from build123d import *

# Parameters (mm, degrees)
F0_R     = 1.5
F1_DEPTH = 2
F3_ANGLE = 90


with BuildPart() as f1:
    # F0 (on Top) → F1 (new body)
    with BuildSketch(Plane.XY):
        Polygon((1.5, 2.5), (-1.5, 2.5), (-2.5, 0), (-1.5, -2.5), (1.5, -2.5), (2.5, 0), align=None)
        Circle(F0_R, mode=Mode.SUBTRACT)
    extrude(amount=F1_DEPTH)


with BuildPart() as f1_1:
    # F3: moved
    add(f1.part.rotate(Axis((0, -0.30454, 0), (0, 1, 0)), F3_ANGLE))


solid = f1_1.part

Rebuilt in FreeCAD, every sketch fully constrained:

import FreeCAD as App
import Part
import Sketcher
from FreeCAD import Vector
Q = App.Units.Quantity

doc = App.newDocument("Part")
body = doc.addObject("PartDesign::Body", "Body")

# Sketch on XY plane
sketch1 = body.newObject("Sketcher::SketchObject", "Sketch")
sketch1.AttachmentSupport = (doc.getObject("XY_Plane"), [""])
sketch1.MapMode = "FlatFace"
sketch1.addGeometry(Part.LineSegment(Vector(1.5, 2.5, 0), Vector(-1.5, 2.5, 0)), False)
sketch1.addGeometry(Part.LineSegment(Vector(-1.5, 2.5, 0), Vector(-2.5, 0, 0)), False)
sketch1.addGeometry(Part.LineSegment(Vector(-2.5, 0, 0), Vector(-1.5, -2.5, 0)), False)
sketch1.addGeometry(Part.LineSegment(Vector(-1.5, -2.5, 0), Vector(1.5, -2.5, 0)), False)
sketch1.addGeometry(Part.LineSegment(Vector(1.5, -2.5, 0), Vector(2.5, 0, 0)), False)
sketch1.addGeometry(Part.LineSegment(Vector(2.5, 0, 0), Vector(1.5, 2.5, 0)), False)
sketch1.addGeometry(Part.Circle(Vector(0, 0, 0), Vector(0, 0, 1), 1.5), False)
sketch1.addConstraint(Sketcher.Constraint("Coincident", 0, 2, 1, 1))
sketch1.addConstraint(Sketcher.Constraint("Coincident", 1, 2, 2, 1))
sketch1.addConstraint(Sketcher.Constraint("Coincident", 2, 2, 3, 1))
sketch1.addConstraint(Sketcher.Constraint("Coincident", 3, 2, 4, 1))
sketch1.addConstraint(Sketcher.Constraint("Coincident", 4, 2, 5, 1))
sketch1.addConstraint(Sketcher.Constraint("Coincident", 5, 2, 0, 1))
sketch1.addConstraint(Sketcher.Constraint("Horizontal", 0))
sketch1.addConstraint(Sketcher.Constraint("Horizontal", 3))
sketch1.addConstraint(Sketcher.Constraint("Coincident", 6, 3, -1, 1))
sketch1.addConstraint(Sketcher.Constraint("Symmetric", 0, 2, 3, 2, -1, 1))
sketch1.addConstraint(Sketcher.Constraint("Symmetric", 1, 2, 4, 2, -1, 1))
sketch1.addConstraint(Sketcher.Constraint("PointOnObject", 1, 2, -1))
sketch1.addConstraint(Sketcher.Constraint("Parallel", 2, 5))
sketch1.addConstraint(Sketcher.Constraint("Vertical", 0, 2, 2, 2))
sketch1.addConstraint(Sketcher.Constraint("Diameter", 6, Q("3 mm")))
sketch1.addConstraint(Sketcher.Constraint("DistanceX", 0, 2, 0, 1, Q("3 mm")))
sketch1.addConstraint(Sketcher.Constraint("DistanceX", 1, 2, 0, 2, Q("1 mm")))
sketch1.addConstraint(Sketcher.Constraint("DistanceY", 2, 2, 0, 2, Q("5 mm")))
pad1 = body.newObject("PartDesign::Pad", "Pad")
pad1.Profile = sketch1
pad1.Length = 2
body2 = doc.addObject("PartDesign::Body", "Body001")
doc.recompute()

body.Placement = App.Placement(Vector(0, 0, 0), App.Rotation(Vector(0, 1, 0), 90))
boolean = body2.newObject("PartDesign::Boolean", "Boolean")
boolean.Type = "Fuse"
boolean.addObjects([body])

doc.recompute()
